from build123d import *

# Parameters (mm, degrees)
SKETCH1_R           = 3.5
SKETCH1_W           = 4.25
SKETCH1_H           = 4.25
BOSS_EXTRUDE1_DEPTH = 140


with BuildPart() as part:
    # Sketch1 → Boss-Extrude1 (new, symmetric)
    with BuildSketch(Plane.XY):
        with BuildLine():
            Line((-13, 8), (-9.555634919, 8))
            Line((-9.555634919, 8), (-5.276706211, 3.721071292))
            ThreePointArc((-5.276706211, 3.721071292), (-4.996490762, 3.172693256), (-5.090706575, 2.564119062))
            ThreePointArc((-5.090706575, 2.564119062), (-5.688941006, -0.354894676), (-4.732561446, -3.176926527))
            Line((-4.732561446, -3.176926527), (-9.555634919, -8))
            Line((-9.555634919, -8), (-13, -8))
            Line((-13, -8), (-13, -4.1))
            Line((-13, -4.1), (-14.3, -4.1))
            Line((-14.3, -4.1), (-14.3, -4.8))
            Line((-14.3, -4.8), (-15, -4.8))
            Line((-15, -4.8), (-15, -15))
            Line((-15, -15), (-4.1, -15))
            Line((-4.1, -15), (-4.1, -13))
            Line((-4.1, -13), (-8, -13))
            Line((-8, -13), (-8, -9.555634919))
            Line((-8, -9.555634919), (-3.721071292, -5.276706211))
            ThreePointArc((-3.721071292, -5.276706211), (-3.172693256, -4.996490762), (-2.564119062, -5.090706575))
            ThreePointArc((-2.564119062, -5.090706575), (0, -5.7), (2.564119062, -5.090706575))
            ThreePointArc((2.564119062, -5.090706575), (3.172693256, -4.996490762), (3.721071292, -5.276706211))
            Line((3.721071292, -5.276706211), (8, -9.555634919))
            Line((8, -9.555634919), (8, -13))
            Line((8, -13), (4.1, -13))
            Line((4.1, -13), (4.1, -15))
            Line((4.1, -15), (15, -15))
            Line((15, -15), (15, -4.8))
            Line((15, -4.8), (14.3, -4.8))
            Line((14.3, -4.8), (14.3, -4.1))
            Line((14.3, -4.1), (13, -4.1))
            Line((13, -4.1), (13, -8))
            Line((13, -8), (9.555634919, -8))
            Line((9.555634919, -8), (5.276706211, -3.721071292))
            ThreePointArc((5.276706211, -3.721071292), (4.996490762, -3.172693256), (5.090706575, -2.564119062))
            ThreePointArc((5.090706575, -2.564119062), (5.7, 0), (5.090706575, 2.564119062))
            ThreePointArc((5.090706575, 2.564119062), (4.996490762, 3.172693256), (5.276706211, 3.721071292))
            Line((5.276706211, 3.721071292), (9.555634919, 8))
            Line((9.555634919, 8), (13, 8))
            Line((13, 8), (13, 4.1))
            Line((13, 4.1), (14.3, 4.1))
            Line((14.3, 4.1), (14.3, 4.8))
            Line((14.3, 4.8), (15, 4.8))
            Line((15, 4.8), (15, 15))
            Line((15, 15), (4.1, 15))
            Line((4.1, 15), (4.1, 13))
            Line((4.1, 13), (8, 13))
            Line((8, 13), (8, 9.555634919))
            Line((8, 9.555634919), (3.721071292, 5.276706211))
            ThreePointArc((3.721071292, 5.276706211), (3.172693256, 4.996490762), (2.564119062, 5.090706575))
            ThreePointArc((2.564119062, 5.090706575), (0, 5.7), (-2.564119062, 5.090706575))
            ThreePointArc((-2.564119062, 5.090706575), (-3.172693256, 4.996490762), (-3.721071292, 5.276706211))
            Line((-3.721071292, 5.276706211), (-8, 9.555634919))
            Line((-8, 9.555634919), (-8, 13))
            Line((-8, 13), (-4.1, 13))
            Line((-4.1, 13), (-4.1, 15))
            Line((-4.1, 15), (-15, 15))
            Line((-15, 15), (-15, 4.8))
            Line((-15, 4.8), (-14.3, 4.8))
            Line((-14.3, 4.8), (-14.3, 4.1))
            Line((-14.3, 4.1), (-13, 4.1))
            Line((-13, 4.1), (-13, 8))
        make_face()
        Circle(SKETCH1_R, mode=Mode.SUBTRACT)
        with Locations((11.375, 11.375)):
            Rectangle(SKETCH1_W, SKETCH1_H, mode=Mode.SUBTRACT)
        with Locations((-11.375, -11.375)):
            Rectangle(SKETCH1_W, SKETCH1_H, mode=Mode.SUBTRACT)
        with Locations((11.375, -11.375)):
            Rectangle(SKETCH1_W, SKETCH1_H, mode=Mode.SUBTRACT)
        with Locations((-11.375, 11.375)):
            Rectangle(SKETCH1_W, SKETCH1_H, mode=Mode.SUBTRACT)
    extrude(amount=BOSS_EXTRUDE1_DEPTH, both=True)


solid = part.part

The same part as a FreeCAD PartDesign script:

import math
import FreeCAD as App
import Part
import Sketcher

V = App.Vector

doc = App.newDocument("Part")
body = doc.addObject("PartDesign::Body", "Body")

# Sketch on XY plane
sketch1 = doc.addObject("Sketcher::SketchObject", "Sketch")
body.addObject(sketch1)
sketch1.AttachmentSupport = (doc.XY_Plane, [""])
sketch1.MapMode = "FlatFace"
sketch1.addGeometry([
    Part.LineSegment(V(-13, 8, 0), V(-9.555635, 8, 0)),  # 0
    Part.LineSegment(V(-9.555635, 8, 0), V(-5.276706, 3.721071, 0)),  # 1
    Part.ArcOfCircle(Part.Circle(V(-5.983813, 3.013965, 0), V(0, 0, 1), 1), math.radians(-26.733769), math.radians(45)),  # 2
    Part.ArcOfCircle(Part.Circle(V(0, 0, 0), V(0, 0, 1), 5.7), math.radians(153.266231), math.radians(213.873112)),  # 3
    Part.LineSegment(V(-4.732561, -3.176927, 0), V(-9.555635, -8, 0)),  # 4
    Part.LineSegment(V(-9.555635, -8, 0), V(-13, -8, 0)),  # 5
    Part.LineSegment(V(-13, -8, 0), V(-13, -4.1, 0)),  # 6
    Part.LineSegment(V(-13, -4.1, 0), V(-14.3, -4.1, 0)),  # 7
    Part.LineSegment(V(-14.3, -4.1, 0), V(-14.3, -4.8, 0)),  # 8
    Part.LineSegment(V(-14.3, -4.8, 0), V(-15, -4.8, 0)),  # 9
    Part.LineSegment(V(-15, -4.8, 0), V(-15, -15, 0)),  # 10
    Part.LineSegment(V(-15, -15, 0), V(-4.1, -15, 0)),  # 11
    Part.LineSegment(V(-4.1, -15, 0), V(-4.1, -13, 0)),  # 12
    Part.LineSegment(V(-4.1, -13, 0), V(-8, -13, 0)),  # 13
    Part.LineSegment(V(-8, -13, 0), V(-8, -9.555635, 0)),  # 14
    Part.LineSegment(V(-8, -9.555635, 0), V(-3.721071, -5.276706, 0)),  # 15
    Part.ArcOfCircle(Part.Circle(V(-3.013965, -5.983813, 0), V(0, 0, 1), 1), math.radians(63.266231), math.radians(135)),  # 16
    Part.ArcOfCircle(Part.Circle(V(0, 0, 0), V(0, 0, 1), 5.7), math.radians(-116.733769), math.radians(-63.266231)),  # 17
    Part.ArcOfCircle(Part.Circle(V(3.013965, -5.983813, 0), V(0, 0, 1), 1), math.radians(45), math.radians(116.733769)),  # 18
    Part.LineSegment(V(3.721071, -5.276706, 0), V(8, -9.555635, 0)),  # 19
    Part.LineSegment(V(8, -9.555635, 0), V(8, -13, 0)),  # 20
    Part.LineSegment(V(8, -13, 0), V(4.1, -13, 0)),  # 21
    Part.LineSegment(V(4.1, -13, 0), V(4.1, -15, 0)),  # 22
    Part.LineSegment(V(4.1, -15, 0), V(15, -15, 0)),  # 23
    Part.LineSegment(V(15, -15, 0), V(15, -4.8, 0)),  # 24
    Part.LineSegment(V(15, -4.8, 0), V(14.3, -4.8, 0)),  # 25
    Part.LineSegment(V(14.3, -4.8, 0), V(14.3, -4.1, 0)),  # 26
    Part.LineSegment(V(14.3, -4.1, 0), V(13, -4.1, 0)),  # 27
    Part.LineSegment(V(13, -4.1, 0), V(13, -8, 0)),  # 28
    Part.LineSegment(V(13, -8, 0), V(9.555635, -8, 0)),  # 29
    Part.LineSegment(V(9.555635, -8, 0), V(5.276706, -3.721071, 0)),  # 30
    Part.ArcOfCircle(Part.Circle(V(5.983813, -3.013965, 0), V(0, 0, 1), 1), math.radians(153.266231), math.radians(225)),  # 31
    Part.ArcOfCircle(Part.Circle(V(0, 0, 0), V(0, 0, 1), 5.7), math.radians(-26.733769), math.radians(26.733769)),  # 32
    Part.ArcOfCircle(Part.Circle(V(5.983813, 3.013965, 0), V(0, 0, 1), 1), math.radians(135), math.radians(206.733769)),  # 33
    Part.LineSegment(V(5.276706, 3.721071, 0), V(9.555635, 8, 0)),  # 34
    Part.LineSegment(V(9.555635, 8, 0), V(13, 8, 0)),  # 35
    Part.LineSegment(V(13, 8, 0), V(13, 4.1, 0)),  # 36
    Part.LineSegment(V(13, 4.1, 0), V(14.3, 4.1, 0)),  # 37
    Part.LineSegment(V(14.3, 4.1, 0), V(14.3, 4.8, 0)),  # 38
    Part.LineSegment(V(14.3, 4.8, 0), V(15, 4.8, 0)),  # 39
    Part.LineSegment(V(15, 4.8, 0), V(15, 15, 0)),  # 40
    Part.LineSegment(V(15, 15, 0), V(4.1, 15, 0)),  # 41
    Part.LineSegment(V(4.1, 15, 0), V(4.1, 13, 0)),  # 42
    Part.LineSegment(V(4.1, 13, 0), V(8, 13, 0)),  # 43
    Part.LineSegment(V(8, 13, 0), V(8, 9.555635, 0)),  # 44
    Part.LineSegment(V(8, 9.555635, 0), V(3.721071, 5.276706, 0)),  # 45
    Part.ArcOfCircle(Part.Circle(V(3.013965, 5.983813, 0), V(0, 0, 1), 1), math.radians(-116.733769), math.radians(-45)),  # 46
    Part.ArcOfCircle(Part.Circle(V(0, 0, 0), V(0, 0, 1), 5.7), math.radians(63.266231), math.radians(116.733769)),  # 47
    Part.ArcOfCircle(Part.Circle(V(-3.013965, 5.983813, 0), V(0, 0, 1), 1), math.radians(-135), math.radians(-63.266231)),  # 48
    Part.LineSegment(V(-3.721071, 5.276706, 0), V(-8, 9.555635, 0)),  # 49
    Part.LineSegment(V(-8, 9.555635, 0), V(-8, 13, 0)),  # 50
    Part.LineSegment(V(-8, 13, 0), V(-4.1, 13, 0)),  # 51
    Part.LineSegment(V(-4.1, 13, 0), V(-4.1, 15, 0)),  # 52
    Part.LineSegment(V(-4.1, 15, 0), V(-15, 15, 0)),  # 53
    Part.LineSegment(V(-15, 15, 0), V(-15, 4.8, 0)),  # 54
    Part.LineSegment(V(-15, 4.8, 0), V(-14.3, 4.8, 0)),  # 55
    Part.LineSegment(V(-14.3, 4.8, 0), V(-14.3, 4.1, 0)),  # 56
    Part.LineSegment(V(-14.3, 4.1, 0), V(-13, 4.1, 0)),  # 57
    Part.LineSegment(V(-13, 4.1, 0), V(-13, 8, 0)),  # 58
    Part.LineSegment(V(-9.25, -13.5, 0), V(-13.5, -13.5, 0)),  # 59
    Part.LineSegment(V(-13.5, -13.5, 0), V(-13.5, -9.25, 0)),  # 60
    Part.LineSegment(V(-13.5, -9.25, 0), V(-9.25, -9.25, 0)),  # 61
    Part.LineSegment(V(-9.25, -9.25, 0), V(-9.25, -13.5, 0)),  # 62
    Part.LineSegment(V(13.5, -13.5, 0), V(9.25, -13.5, 0)),  # 63
    Part.LineSegment(V(9.25, -13.5, 0), V(9.25, -9.25, 0)),  # 64
    Part.LineSegment(V(9.25, -9.25, 0), V(13.5, -9.25, 0)),  # 65
    Part.LineSegment(V(13.5, -9.25, 0), V(13.5, -13.5, 0)),  # 66
    Part.LineSegment(V(-9.25, 9.25, 0), V(-13.5, 9.25, 0)),  # 67
    Part.LineSegment(V(-13.5, 9.25, 0), V(-13.5, 13.5, 0)),  # 68
    Part.LineSegment(V(-13.5, 13.5, 0), V(-9.25, 13.5, 0)),  # 69
    Part.LineSegment(V(-9.25, 13.5, 0), V(-9.25, 9.25, 0)),  # 70
    Part.Circle(V(0, 0, 0), V(0, 0, 1), 3.5),  # 71
    Part.LineSegment(V(13.5, 9.25, 0), V(9.25, 9.25, 0)),  # 72
    Part.LineSegment(V(9.25, 9.25, 0), V(9.25, 13.5, 0)),  # 73
    Part.LineSegment(V(9.25, 13.5, 0), V(13.5, 13.5, 0)),  # 74
    Part.LineSegment(V(13.5, 13.5, 0), V(13.5, 9.25, 0)),  # 75
], False)
sketch1.addConstraint([
    Sketcher.Constraint("Coincident", 0, 2, 1, 1),
    Sketcher.Constraint("Tangent", 1, 2, 2, 2),
    Sketcher.Constraint("Tangent", 2, 1, 3, 1),
    Sketcher.Constraint("Coincident", 3, 2, 4, 1),
    Sketcher.Constraint("Coincident", 4, 2, 5, 1),
    Sketcher.Constraint("Coincident", 5, 2, 6, 1),
    Sketcher.Constraint("Coincident", 6, 2, 7, 1),
    Sketcher.Constraint("Coincident", 7, 2, 8, 1),
    Sketcher.Constraint("Coincident", 8, 2, 9, 1),
    Sketcher.Constraint("Coincident", 9, 2, 10, 1),
    Sketcher.Constraint("Coincident", 10, 2, 11, 1),
    Sketcher.Constraint("Coincident", 11, 2, 12, 1),
    Sketcher.Constraint("Coincident", 12, 2, 13, 1),
    Sketcher.Constraint("Coincident", 13, 2, 14, 1),
    Sketcher.Constraint("Coincident", 14, 2, 15, 1),
    Sketcher.Constraint("Tangent", 15, 2, 16, 2),
    Sketcher.Constraint("Tangent", 16, 1, 17, 1),
    Sketcher.Constraint("Tangent", 17, 2, 18, 2),
    Sketcher.Constraint("Tangent", 18, 1, 19, 1),
    Sketcher.Constraint("Coincident", 19, 2, 20, 1),
    Sketcher.Constraint("Coincident", 20, 2, 21, 1),
    Sketcher.Constraint("Coincident", 21, 2, 22, 1),
    Sketcher.Constraint("Coincident", 22, 2, 23, 1),
    Sketcher.Constraint("Coincident", 23, 2, 24, 1),
    Sketcher.Constraint("Coincident", 24, 2, 25, 1),
    Sketcher.Constraint("Coincident", 25, 2, 26, 1),
    Sketcher.Constraint("Coincident", 26, 2, 27, 1),
    Sketcher.Constraint("Coincident", 27, 2, 28, 1),
    Sketcher.Constraint("Coincident", 28, 2, 29, 1),
    Sketcher.Constraint("Coincident", 29, 2, 30, 1),
    Sketcher.Constraint("Tangent", 30, 2, 31, 2),
    Sketcher.Constraint("Tangent", 31, 1, 32, 1),
    Sketcher.Constraint("Tangent", 32, 2, 33, 2),
    Sketcher.Constraint("Tangent", 33, 1, 34, 1),
    Sketcher.Constraint("Coincident", 34, 2, 35, 1),
    Sketcher.Constraint("Coincident", 35, 2, 36, 1),
    Sketcher.Constraint("Coincident", 36, 2, 37, 1),
    Sketcher.Constraint("Coincident", 37, 2, 38, 1),
    Sketcher.Constraint("Coincident", 38, 2, 39, 1),
    Sketcher.Constraint("Coincident", 39, 2, 40, 1),
    Sketcher.Constraint("Coincident", 40, 2, 41, 1),
    Sketcher.Constraint("Coincident", 41, 2, 42, 1),
    Sketcher.Constraint("Coincident", 42, 2, 43, 1),
    Sketcher.Constraint("Coincident", 43, 2, 44, 1),
    Sketcher.Constraint("Coincident", 44, 2, 45, 1),
    Sketcher.Constraint("Tangent", 45, 2, 46, 2),
    Sketcher.Constraint("Tangent", 46, 1, 47, 1),
    Sketcher.Constraint("Tangent", 47, 2, 48, 2),
    Sketcher.Constraint("Tangent", 48, 1, 49, 1),
    Sketcher.Constraint("Coincident", 49, 2, 50, 1),
    Sketcher.Constraint("Coincident", 50, 2, 51, 1),
    Sketcher.Constraint("Coincident", 51, 2, 52, 1),
    Sketcher.Constraint("Coincident", 52, 2, 53, 1),
    Sketcher.Constraint("Coincident", 53, 2, 54, 1),
    Sketcher.Constraint("Coincident", 54, 2, 55, 1),
    Sketcher.Constraint("Coincident", 55, 2, 56, 1),
    Sketcher.Constraint("Coincident", 56, 2, 57, 1),
    Sketcher.Constraint("Coincident", 57, 2, 58, 1),
    Sketcher.Constraint("Coincident", 58, 2, 0, 1),
    Sketcher.Constraint("Coincident", 59, 2, 60, 1),
    Sketcher.Constraint("Coincident", 60, 2, 61, 1),
    Sketcher.Constraint("Coincident", 61, 2, 62, 1),
    Sketcher.Constraint("Coincident", 62, 2, 59, 1),
    Sketcher.Constraint("Coincident", 63, 2, 64, 1),
    Sketcher.Constraint("Coincident", 64, 2, 65, 1),
    Sketcher.Constraint("Coincident", 65, 2, 66, 1),
    Sketcher.Constraint("Coincident", 66, 2, 63, 1),
    Sketcher.Constraint("Coincident", 67, 2, 68, 1),
    Sketcher.Constraint("Coincident", 68, 2, 69, 1),
    Sketcher.Constraint("Coincident", 69, 2, 70, 1),
    Sketcher.Constraint("Coincident", 70, 2, 67, 1),
    Sketcher.Constraint("Coincident", 72, 2, 73, 1),
    Sketcher.Constraint("Coincident", 73, 2, 74, 1),
    Sketcher.Constraint("Coincident", 74, 2, 75, 1),
    Sketcher.Constraint("Coincident", 75, 2, 72, 1),
    Sketcher.Constraint("Horizontal", 0),
    Sketcher.Constraint("Horizontal", 5),
    Sketcher.Constraint("Vertical", 6),
    Sketcher.Constraint("Horizontal", 7),
    Sketcher.Constraint("Vertical", 8),
    Sketcher.Constraint("Horizontal", 9),
    Sketcher.Constraint("Vertical", 10),
    Sketcher.Constraint("Horizontal", 11),
    Sketcher.Constraint("Vertical", 12),
    Sketcher.Constraint("Horizontal", 13),
    Sketcher.Constraint("Vertical", 14),
    Sketcher.Constraint("Vertical", 20),
    Sketcher.Constraint("Horizontal", 21),
    Sketcher.Constraint("Vertical", 22),
    Sketcher.Constraint("Horizontal", 23),
    Sketcher.Constraint("Vertical", 24),
    Sketcher.Constraint("Horizontal", 25),
    Sketcher.Constraint("Vertical", 26),
    Sketcher.Constraint("Horizontal", 27),
    Sketcher.Constraint("Vertical", 28),
    Sketcher.Constraint("Horizontal", 29),
    Sketcher.Constraint("Horizontal", 35),
    Sketcher.Constraint("Vertical", 36),
    Sketcher.Constraint("Horizontal", 37),
    Sketcher.Constraint("Vertical", 38),
    Sketcher.Constraint("Horizontal", 39),
    Sketcher.Constraint("Vertical", 40),
    Sketcher.Constraint("Horizontal", 41),
    Sketcher.Constraint("Vertical", 42),
    Sketcher.Constraint("Horizontal", 43),
    Sketcher.Constraint("Vertical", 44),
    Sketcher.Constraint("Vertical", 50),
    Sketcher.Constraint("Horizontal", 51),
    Sketcher.Constraint("Vertical", 52),
    Sketcher.Constraint("Horizontal", 53),
    Sketcher.Constraint("Vertical", 54),
    Sketcher.Constraint("Horizontal", 55),
    Sketcher.Constraint("Vertical", 56),
    Sketcher.Constraint("Horizontal", 57),
    Sketcher.Constraint("Vertical", 58),
    Sketcher.Constraint("Horizontal", 59),
    Sketcher.Constraint("Vertical", 60),
    Sketcher.Constraint("Horizontal", 61),
    Sketcher.Constraint("Vertical", 62),
    Sketcher.Constraint("Horizontal", 63),
    Sketcher.Constraint("Vertical", 64),
    Sketcher.Constraint("Horizontal", 65),
    Sketcher.Constraint("Vertical", 66),
    Sketcher.Constraint("Horizontal", 67),
    Sketcher.Constraint("Vertical", 68),
    Sketcher.Constraint("Horizontal", 69),
    Sketcher.Constraint("Vertical", 70),
    Sketcher.Constraint("Horizontal", 72),
    Sketcher.Constraint("Vertical", 73),
    Sketcher.Constraint("Horizontal", 74),
    Sketcher.Constraint("Vertical", 75),
    Sketcher.Constraint("Coincident", 3, 3, -1, 1),
    Sketcher.Constraint("Coincident", 17, 3, -1, 1),
    Sketcher.Constraint("Coincident", 32, 3, -1, 1),
    Sketcher.Constraint("Coincident", 47, 3, -1, 1),
    Sketcher.Constraint("Coincident", 71, 3, -1, 1),
    Sketcher.Constraint("Equal", 2, 16),
    Sketcher.Constraint("Equal", 3, 17),
    Sketcher.Constraint("Equal", 16, 18),
    Sketcher.Constraint("Equal", 18, 31),
    Sketcher.Constraint("Equal", 17, 32),
    Sketcher.Constraint("Equal", 31, 33),
    Sketcher.Constraint("Equal", 33, 46),
    Sketcher.Constraint("Equal", 32, 47),
    Sketcher.Constraint("Equal", 46, 48),
    Sketcher.Constraint("Symmetric", 0, 2, 29, 2, -1, 1),
    Sketcher.Constraint("Symmetric", 4, 2, 34, 2, -1, 1),
    Sketcher.Constraint("Symmetric", 6, 2, 36, 2, -1, 1),
    Sketcher.Constraint("Symmetric", 8, 2, 38, 2, -1, 1),
    Sketcher.Constraint("Symmetric", 10, 2, 40, 2, -1, 1),
    Sketcher.Constraint("Symmetric", 12, 2, 42, 2, -1, 1),
    Sketcher.Constraint("Symmetric", 14, 2, 44, 2, -1, 1),
    Sketcher.Constraint("Symmetric", 18, 1, 48, 1, -1, 1),
    Sketcher.Constraint("Symmetric", 20, 2, 50, 2, -1, 1),
    Sketcher.Constraint("Symmetric", 22, 2, 52, 2, -1, 1),
    Sketcher.Constraint("Symmetric", 24, 2, 54, 2, -1, 1),
    Sketcher.Constraint("Symmetric", 26, 2, 56, 2, -1, 1),
    Sketcher.Constraint("Symmetric", 65, 2, 67, 2, -1, 1),
    Sketcher.Constraint("Symmetric", 63, 2, 69, 2, -1, 1),
    Sketcher.Constraint("Symmetric", 61, 2, 72, 2, -1, 1),
    Sketcher.Constraint("Symmetric", 59, 2, 74, 2, -1, 1),
    Sketcher.Constraint("Symmetric", 15, 2, 18, 1, -2),
    Sketcher.Constraint("Symmetric", 13, 2, 20, 2, -2),
    Sketcher.Constraint("Symmetric", 11, 2, 22, 2, -2),
    Sketcher.Constraint("Symmetric", 9, 2, 24, 2, -2),
    Sketcher.Constraint("Symmetric", 7, 2, 26, 2, -2),
    Sketcher.Constraint("Symmetric", 5, 2, 28, 2, -2),
    Sketcher.Constraint("Symmetric", 1, 2, 33, 1, -2),
    Sketcher.Constraint("Symmetric", 62, 2, 63, 2, -2),
    Sketcher.Constraint("Symmetric", 60, 2, 65, 2, -2),
    Sketcher.Constraint("Perpendicular", 1, 4),
    Sketcher.Constraint("Parallel", 4, 15),
    Sketcher.Constraint("Perpendicular", 15, 19),
    Sketcher.Constraint("Parallel", 19, 30),
    Sketcher.Constraint("Parallel", 34, 45),
    Sketcher.Constraint("Vertical", 6, 2, 57, 2),
    Sketcher.Constraint("Equal", 51, 6),
    Sketcher.Constraint("Equal", 55, 8),
    Sketcher.Constraint("Equal", 35, 14),
    Sketcher.Constraint("Equal", 74, 60),
    Sketcher.Constraint("Equal", 1, 15),
    Sketcher.Constraint("Diameter", 71, 7.0),
    Sketcher.Constraint("Radius", 2, 1.0),
    Sketcher.Constraint("Radius", 3, 5.7),
    Sketcher.Constraint("DistanceY", 12, 1, 12, 2, 2.0),
    Sketcher.Constraint("DistanceX", 7, 2, 7, 1, 1.3),
    Sketcher.Constraint("DistanceX", 9, 2, 9, 1, 0.7),
    Sketcher.Constraint("DistanceX", 11, 1, 11, 2, 10.9),
    Sketcher.Constraint("DistanceX", 13, 2, 13, 1, 3.9),
    Sketcher.Constraint("DistanceY", 10, 2, 10, 1, 10.2),
    Sketcher.Constraint("DistanceY", -1, 1, 0, 2, 8.0),
    Sketcher.Constraint("DistanceX", 59, 2, 59, 1, 4.25),
    Sketcher.Constraint("DistanceX", 59, 2, -1, 1, 13.5),
    Sketcher.Constraint("DistanceY", 59, 2, -1, 1, 13.5),
    Sketcher.Constraint("Distance", 1, 6.051319),
])
pad1 = doc.addObject("PartDesign::Pad", "Pad")
body.addObject(pad1)
pad1.Profile = sketch1
pad1.Length = 280
pad1.Midplane = True

doc.recompute()
